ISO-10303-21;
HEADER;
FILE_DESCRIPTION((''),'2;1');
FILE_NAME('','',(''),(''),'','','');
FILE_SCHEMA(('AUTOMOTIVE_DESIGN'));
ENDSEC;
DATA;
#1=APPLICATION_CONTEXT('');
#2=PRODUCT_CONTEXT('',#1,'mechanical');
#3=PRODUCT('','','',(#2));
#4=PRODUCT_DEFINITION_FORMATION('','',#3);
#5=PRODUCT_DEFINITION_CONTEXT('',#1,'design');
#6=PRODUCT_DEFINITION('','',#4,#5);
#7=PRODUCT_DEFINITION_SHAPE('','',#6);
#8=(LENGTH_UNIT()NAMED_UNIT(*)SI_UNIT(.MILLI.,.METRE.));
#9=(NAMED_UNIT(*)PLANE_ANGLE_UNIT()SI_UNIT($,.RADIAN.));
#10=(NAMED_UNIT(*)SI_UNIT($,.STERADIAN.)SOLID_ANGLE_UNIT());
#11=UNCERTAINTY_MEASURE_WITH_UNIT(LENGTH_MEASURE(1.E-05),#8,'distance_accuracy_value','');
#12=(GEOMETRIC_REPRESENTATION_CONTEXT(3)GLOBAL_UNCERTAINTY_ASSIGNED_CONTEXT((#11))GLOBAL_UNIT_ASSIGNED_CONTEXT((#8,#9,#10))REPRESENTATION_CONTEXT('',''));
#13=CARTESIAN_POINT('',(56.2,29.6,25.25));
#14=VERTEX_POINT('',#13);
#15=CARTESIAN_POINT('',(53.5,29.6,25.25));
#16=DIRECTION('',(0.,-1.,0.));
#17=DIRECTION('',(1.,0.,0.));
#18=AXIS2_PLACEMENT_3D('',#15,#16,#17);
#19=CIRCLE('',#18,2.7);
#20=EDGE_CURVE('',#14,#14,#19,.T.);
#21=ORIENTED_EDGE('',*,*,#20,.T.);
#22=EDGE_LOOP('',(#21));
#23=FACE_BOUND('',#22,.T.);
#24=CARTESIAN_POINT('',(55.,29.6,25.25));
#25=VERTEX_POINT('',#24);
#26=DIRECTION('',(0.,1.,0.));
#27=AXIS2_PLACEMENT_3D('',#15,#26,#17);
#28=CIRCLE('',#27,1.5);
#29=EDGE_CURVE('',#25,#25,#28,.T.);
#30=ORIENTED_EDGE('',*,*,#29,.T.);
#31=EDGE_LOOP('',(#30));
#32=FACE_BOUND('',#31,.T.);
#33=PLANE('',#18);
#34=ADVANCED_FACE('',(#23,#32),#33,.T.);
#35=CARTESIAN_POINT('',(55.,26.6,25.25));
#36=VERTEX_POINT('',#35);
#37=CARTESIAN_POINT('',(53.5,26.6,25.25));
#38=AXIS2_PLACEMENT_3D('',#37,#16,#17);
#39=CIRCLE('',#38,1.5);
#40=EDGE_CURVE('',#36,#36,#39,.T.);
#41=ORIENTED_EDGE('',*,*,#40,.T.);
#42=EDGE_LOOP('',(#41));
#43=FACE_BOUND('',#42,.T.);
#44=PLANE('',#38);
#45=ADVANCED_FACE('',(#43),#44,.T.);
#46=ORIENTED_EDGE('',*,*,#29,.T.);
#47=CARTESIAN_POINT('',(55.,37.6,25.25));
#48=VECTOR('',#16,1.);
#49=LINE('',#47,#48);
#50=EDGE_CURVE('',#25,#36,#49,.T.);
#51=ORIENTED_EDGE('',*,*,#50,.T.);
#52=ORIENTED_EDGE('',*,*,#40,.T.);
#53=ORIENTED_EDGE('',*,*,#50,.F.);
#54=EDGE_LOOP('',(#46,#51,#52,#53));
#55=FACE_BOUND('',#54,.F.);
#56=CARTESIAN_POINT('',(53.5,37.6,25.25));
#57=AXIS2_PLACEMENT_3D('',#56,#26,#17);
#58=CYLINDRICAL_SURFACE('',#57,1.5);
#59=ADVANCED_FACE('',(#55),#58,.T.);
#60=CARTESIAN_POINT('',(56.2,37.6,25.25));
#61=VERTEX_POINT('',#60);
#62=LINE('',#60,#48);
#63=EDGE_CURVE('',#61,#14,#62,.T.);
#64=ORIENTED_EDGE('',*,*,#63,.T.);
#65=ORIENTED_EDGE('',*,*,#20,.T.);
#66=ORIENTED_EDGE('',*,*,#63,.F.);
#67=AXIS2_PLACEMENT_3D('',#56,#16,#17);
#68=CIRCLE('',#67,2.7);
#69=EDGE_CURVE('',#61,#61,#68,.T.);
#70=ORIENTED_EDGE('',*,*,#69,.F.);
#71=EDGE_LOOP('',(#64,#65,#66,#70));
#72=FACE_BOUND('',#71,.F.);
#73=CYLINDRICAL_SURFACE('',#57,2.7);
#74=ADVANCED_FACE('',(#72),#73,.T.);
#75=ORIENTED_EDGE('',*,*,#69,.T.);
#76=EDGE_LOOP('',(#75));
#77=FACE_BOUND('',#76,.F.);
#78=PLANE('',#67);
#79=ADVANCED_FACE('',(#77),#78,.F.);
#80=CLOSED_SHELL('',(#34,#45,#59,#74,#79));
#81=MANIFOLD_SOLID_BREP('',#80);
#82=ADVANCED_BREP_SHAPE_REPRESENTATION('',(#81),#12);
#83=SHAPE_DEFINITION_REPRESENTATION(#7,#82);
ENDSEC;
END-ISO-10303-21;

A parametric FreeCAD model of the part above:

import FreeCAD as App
import Part
import Sketcher

V = App.Vector

doc = App.newDocument("Part")
body = doc.addObject("PartDesign::Body", "Body")

# Sketch on XZ plane
sketch1 = body.newObject("Sketcher::SketchObject", "Sketch")
sketch1.AttachmentSupport = (doc.getObject("XZ_Plane"), [""])
sketch1.MapMode = "FlatFace"
sketch1.AttachmentOffset = App.Placement(V(0, 0, -37.6), App.Rotation())
sketch1.addGeometry(Part.Circle(V(53.5, 25.2, 0), V(0, 0, 1), 2.7), False)
sketch1.addConstraint([
    Sketcher.Constraint("Diameter", 0, 5.4),
    Sketcher.Constraint("DistanceX", -1, 1, 0, 3, 53.5),
    Sketcher.Constraint("DistanceY", -1, 1, 0, 3, 25.25),
])
pad1 = body.newObject("PartDesign::Pad", "Pad")
pad1.Profile = sketch1
pad1.Length = 8
body2 = doc.addObject("PartDesign::Body", "Body001")

# Sketch on XZ plane
sketch2 = body2.newObject("Sketcher::SketchObject", "Sketch001")
sketch2.AttachmentSupport = (doc.getObject("XZ_Plane001"), [""])
sketch2.MapMode = "FlatFace"
sketch2.AttachmentOffset = App.Placement(V(0, 0, -37.6), App.Rotation())
sketch2.addGeometry(Part.Circle(V(53.5, 25.2, 0), V(0, 0, 1), 1.5), False)
sketch2.addConstraint([
    Sketcher.Constraint("Diameter", 0, 3.0),
    Sketcher.Constraint("DistanceX", -1, 1, 0, 3, 53.5),
    Sketcher.Constraint("DistanceY", -1, 1, 0, 3, 25.25),
])
pad2 = body2.newObject("PartDesign::Pad", "Pad001")
pad2.Profile = sketch2
pad2.Length = 11
doc.recompute()

boolean = body2.newObject("PartDesign::Boolean", "Boolean")
boolean.Type = "Fuse"
boolean.addObjects([body])

doc.recompute()
